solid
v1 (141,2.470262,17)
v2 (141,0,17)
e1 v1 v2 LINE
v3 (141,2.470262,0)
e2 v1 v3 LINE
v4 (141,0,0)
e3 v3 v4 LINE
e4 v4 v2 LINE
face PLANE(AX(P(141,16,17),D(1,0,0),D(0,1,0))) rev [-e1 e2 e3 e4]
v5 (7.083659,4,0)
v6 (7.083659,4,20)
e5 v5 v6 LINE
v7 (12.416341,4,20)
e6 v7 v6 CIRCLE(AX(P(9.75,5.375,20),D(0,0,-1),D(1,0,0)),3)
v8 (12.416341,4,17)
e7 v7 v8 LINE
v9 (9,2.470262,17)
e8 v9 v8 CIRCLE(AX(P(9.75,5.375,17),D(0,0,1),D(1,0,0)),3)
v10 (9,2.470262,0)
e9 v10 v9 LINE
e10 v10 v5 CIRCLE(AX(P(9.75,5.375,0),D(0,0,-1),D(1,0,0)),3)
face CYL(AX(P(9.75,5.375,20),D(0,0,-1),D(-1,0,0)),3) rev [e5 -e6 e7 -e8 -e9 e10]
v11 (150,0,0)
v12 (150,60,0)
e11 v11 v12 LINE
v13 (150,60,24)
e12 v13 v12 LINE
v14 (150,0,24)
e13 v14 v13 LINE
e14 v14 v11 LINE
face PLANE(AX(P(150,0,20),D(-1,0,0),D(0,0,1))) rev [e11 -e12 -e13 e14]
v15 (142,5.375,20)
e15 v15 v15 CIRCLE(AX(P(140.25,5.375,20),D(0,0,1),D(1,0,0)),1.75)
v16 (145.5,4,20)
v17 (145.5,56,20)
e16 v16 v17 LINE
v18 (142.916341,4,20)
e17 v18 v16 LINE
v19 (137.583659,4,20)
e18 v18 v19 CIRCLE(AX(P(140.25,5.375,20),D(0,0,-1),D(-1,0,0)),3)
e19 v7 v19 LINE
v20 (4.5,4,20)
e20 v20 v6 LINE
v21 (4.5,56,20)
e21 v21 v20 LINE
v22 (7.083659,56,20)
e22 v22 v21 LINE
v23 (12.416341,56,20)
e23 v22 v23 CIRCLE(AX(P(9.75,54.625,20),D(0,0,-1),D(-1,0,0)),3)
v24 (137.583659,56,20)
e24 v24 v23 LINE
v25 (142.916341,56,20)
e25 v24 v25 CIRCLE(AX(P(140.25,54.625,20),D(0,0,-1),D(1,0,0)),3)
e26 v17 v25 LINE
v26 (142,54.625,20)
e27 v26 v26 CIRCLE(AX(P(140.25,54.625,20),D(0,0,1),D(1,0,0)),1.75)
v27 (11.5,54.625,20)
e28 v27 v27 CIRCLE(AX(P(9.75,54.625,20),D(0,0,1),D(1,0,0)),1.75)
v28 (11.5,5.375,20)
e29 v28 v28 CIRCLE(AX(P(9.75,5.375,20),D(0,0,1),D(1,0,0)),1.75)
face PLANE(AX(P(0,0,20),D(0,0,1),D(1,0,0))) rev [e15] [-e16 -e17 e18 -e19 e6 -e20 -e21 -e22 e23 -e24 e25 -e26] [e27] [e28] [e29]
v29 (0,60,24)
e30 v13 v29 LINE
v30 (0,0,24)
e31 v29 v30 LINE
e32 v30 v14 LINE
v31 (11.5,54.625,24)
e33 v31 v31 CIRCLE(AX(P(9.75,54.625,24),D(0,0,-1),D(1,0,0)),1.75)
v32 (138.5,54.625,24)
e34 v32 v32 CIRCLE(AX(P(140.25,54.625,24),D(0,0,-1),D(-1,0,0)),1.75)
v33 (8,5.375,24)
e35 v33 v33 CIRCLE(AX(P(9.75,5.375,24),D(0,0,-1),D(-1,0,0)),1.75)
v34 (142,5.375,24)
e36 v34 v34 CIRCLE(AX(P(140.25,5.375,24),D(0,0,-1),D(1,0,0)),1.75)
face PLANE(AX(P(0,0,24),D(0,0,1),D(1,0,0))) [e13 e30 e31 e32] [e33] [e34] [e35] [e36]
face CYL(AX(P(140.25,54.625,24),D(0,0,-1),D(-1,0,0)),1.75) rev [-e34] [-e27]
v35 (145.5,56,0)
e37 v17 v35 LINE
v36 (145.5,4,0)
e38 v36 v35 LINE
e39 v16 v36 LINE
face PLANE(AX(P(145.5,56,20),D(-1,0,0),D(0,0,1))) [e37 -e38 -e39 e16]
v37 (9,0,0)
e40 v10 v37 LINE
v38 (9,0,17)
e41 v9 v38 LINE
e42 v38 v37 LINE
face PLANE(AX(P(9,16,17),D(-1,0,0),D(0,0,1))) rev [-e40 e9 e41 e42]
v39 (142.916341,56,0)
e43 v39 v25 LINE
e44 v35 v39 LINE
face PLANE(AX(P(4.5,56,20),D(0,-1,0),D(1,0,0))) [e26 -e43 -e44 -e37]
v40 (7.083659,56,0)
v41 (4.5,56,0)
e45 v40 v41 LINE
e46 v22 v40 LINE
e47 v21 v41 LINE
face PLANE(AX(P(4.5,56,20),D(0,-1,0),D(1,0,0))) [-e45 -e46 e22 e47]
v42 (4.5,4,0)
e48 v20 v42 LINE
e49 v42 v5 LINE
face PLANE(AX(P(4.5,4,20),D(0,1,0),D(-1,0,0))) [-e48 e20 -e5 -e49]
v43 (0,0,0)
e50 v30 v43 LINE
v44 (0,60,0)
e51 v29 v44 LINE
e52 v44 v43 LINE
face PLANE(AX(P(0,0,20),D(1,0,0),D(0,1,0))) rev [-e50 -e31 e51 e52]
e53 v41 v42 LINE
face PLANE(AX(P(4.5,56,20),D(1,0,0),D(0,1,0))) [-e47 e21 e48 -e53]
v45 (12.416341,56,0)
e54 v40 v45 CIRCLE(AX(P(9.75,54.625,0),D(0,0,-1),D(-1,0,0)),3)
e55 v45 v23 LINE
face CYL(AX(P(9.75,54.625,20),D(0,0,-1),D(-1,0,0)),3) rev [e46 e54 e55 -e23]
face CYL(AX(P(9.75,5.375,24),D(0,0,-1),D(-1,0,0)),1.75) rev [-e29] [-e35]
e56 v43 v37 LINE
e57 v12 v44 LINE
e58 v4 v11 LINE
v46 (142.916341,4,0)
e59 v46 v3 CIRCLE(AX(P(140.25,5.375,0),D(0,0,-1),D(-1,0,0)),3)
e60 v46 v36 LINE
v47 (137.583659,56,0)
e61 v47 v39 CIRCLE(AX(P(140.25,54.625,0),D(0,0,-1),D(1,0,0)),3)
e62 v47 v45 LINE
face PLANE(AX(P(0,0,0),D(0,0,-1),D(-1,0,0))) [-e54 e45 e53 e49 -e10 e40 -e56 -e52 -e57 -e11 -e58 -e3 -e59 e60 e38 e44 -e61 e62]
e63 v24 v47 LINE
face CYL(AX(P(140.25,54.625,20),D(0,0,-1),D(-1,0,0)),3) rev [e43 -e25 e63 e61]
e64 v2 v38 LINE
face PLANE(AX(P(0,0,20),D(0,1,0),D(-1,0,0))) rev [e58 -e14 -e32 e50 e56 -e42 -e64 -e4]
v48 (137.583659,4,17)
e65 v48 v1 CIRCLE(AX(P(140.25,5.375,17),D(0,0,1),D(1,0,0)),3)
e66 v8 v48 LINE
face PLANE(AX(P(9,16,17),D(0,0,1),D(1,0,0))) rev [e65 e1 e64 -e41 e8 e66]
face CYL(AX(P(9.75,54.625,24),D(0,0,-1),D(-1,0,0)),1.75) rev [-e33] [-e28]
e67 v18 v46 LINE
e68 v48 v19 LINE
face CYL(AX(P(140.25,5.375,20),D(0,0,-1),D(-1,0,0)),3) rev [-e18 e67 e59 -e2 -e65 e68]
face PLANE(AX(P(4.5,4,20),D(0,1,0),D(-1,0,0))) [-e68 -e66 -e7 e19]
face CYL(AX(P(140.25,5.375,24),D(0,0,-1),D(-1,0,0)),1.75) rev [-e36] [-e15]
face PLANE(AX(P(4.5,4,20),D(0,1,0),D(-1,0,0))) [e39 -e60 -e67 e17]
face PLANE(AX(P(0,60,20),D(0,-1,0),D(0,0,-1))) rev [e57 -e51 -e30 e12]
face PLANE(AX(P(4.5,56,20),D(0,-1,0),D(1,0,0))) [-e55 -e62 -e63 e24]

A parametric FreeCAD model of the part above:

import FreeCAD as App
import Part
import Sketcher
Q = App.Units.Quantity

doc = App.newDocument("Part")
body = doc.addObject("PartDesign::Body", "Body")

# Sketch on XY plane
sketch1 = body.newObject("Sketcher::SketchObject", "Sketch")
sketch1.AttachmentSupport = (doc.getObject("XY_Plane"), [""])
sketch1.MapMode = "FlatFace"
sketch1.addGeometry([
    Part.LineSegment(App.Vector(0, 60, 0), App.Vector(0, 0, 0)),  # 0
    Part.LineSegment(App.Vector(0, 0, 0), App.Vector(150, 0, 0)),  # 1
    Part.LineSegment(App.Vector(150, 0, 0), App.Vector(150, 60, 0)),  # 2
    Part.LineSegment(App.Vector(150, 60, 0), App.Vector(0, 60, 0)),  # 3
    Part.LineSegment(App.Vector(145.5, 4, 0), App.Vector(4.5, 4, 0)),  # 4
    Part.LineSegment(App.Vector(4.5, 4, 0), App.Vector(4.5, 56, 0)),  # 5
    Part.LineSegment(App.Vector(4.5, 56, 0), App.Vector(145.5, 56, 0)),  # 6
    Part.LineSegment(App.Vector(145.5, 56, 0), App.Vector(145.5, 4, 0)),  # 7
], False)
sketch1.addConstraint([
    Sketcher.Constraint("Coincident", 0, 2, 1, 1),
    Sketcher.Constraint("Coincident", 1, 2, 2, 1),
    Sketcher.Constraint("Coincident", 2, 2, 3, 1),
    Sketcher.Constraint("Coincident", 3, 2, 0, 1),
    Sketcher.Constraint("Coincident", 4, 2, 5, 1),
    Sketcher.Constraint("Coincident", 5, 2, 6, 1),
    Sketcher.Constraint("Coincident", 6, 2, 7, 1),
    Sketcher.Constraint("Coincident", 7, 2, 4, 1),
    Sketcher.Constraint("Vertical", 0),
    Sketcher.Constraint("Horizontal", 1),
    Sketcher.Constraint("Vertical", 2),
    Sketcher.Constraint("Horizontal", 3),
    Sketcher.Constraint("Horizontal", 4),
    Sketcher.Constraint("Vertical", 5),
    Sketcher.Constraint("Horizontal", 6),
    Sketcher.Constraint("Vertical", 7),
    Sketcher.Constraint("Coincident", 0, 2, -1, 1),
    Sketcher.Constraint("DistanceX", 1, 1, 1, 2, Q("150 mm")),
    Sketcher.Constraint("DistanceX", 4, 2, 4, 1, Q("141 mm")),
    Sketcher.Constraint("DistanceY", 0, 2, 0, 1, Q("60 mm")),
    Sketcher.Constraint("DistanceY", 5, 1, 5, 2, Q("52 mm")),
    Sketcher.Constraint("DistanceY", -1, 1, 4, 2, Q("4 mm")),
    Sketcher.Constraint("DistanceX", -1, 1, 4, 2, Q("4.5 mm")),
])
pad1 = body.newObject("PartDesign::Pad", "Pad")
pad1.Profile = sketch1
pad1.Length = 20

# Sketch on XY plane
sketch2 = body.newObject("Sketcher::SketchObject", "Sketch001")
sketch2.AttachmentSupport = (doc.getObject("XY_Plane"), [""])
sketch2.MapMode = "FlatFace"
sketch2.AttachmentOffset = App.Placement(App.Vector(0, 0, 20), App.Rotation())
sketch2.addGeometry([
    Part.LineSegment(App.Vector(0, 60, 0), App.Vector(0, 0, 0)),
    Part.LineSegment(App.Vector(0, 0, 0), App.Vector(150, 0, 0)),
    Part.LineSegment(App.Vector(150, 0, 0), App.Vector(150, 60, 0)),
    Part.LineSegment(App.Vector(150, 60, 0), App.Vector(0, 60, 0)),
], False)
sketch2.addConstraint([
    Sketcher.Constraint("Coincident", 0, 2, 1, 1),
    Sketcher.Constraint("Coincident", 1, 2, 2, 1),
    Sketcher.Constraint("Coincident", 2, 2, 3, 1),
    Sketcher.Constraint("Coincident", 3, 2, 0, 1),
    Sketcher.Constraint("Vertical", 0),
    Sketcher.Constraint("Horizontal", 1),
    Sketcher.Constraint("Vertical", 2),
    Sketcher.Constraint("Horizontal", 3),
    Sketcher.Constraint("Coincident", 0, 2, -1, 1),
    Sketcher.Constraint("DistanceX", 1, 1, 1, 2, Q("150 mm")),
    Sketcher.Constraint("DistanceY", 0, 2, 0, 1, Q("60 mm")),
])
pad2 = body.newObject("PartDesign::Pad", "Pad001")
pad2.Profile = sketch2
pad2.Length = 4

# Sketch on XZ plane
sketch3 = body.newObject("Sketcher::SketchObject", "Sketch002")
sketch3.AttachmentSupport = (doc.getObject("XZ_Plane"), [""])
sketch3.MapMode = "FlatFace"
sketch3.addGeometry([
    Part.LineSegment(App.Vector(9, 17, 0), App.Vector(9, 0, 0)),
    Part.LineSegment(App.Vector(9, 0, 0), App.Vector(141, 0, 0)),
    Part.LineSegment(App.Vector(141, 0, 0), App.Vector(141, 17, 0)),
    Part.LineSegment(App.Vector(141, 17, 0), App.Vector(9, 17, 0)),
], False)
sketch3.addConstraint([
    Sketcher.Constraint("Coincident", 0, 2, 1, 1),
    Sketcher.Constraint("Coincident", 1, 2, 2, 1),
    Sketcher.Constraint("Coincident", 2, 2, 3, 1),
    Sketcher.Constraint("Coincident", 3, 2, 0, 1),
    Sketcher.Constraint("Vertical", 0),
    Sketcher.Constraint("Horizontal", 1),
    Sketcher.Constraint("Vertical", 2),
    Sketcher.Constraint("Horizontal", 3),
    Sketcher.Constraint("PointOnObject", 0, 2, -1),
    Sketcher.Constraint("DistanceX", 1, 1, 1, 2, Q("132 mm")),
    Sketcher.Constraint("DistanceY", 0, 2, 0, 1, Q("17 mm")),
    Sketcher.Constraint("DistanceX", -1, 1, 0, 2, Q("9 mm")),
])
pocket1 = body.newObject("PartDesign::Pocket", "Pocket")
pocket1.Profile = sketch3
pocket1.Length = 16

# Sketch on XY plane
sketch4 = body.newObject("Sketcher::SketchObject", "Sketch003")
sketch4.AttachmentSupport = (doc.getObject("XY_Plane"), [""])
sketch4.MapMode = "FlatFace"
sketch4.AttachmentOffset = App.Placement(App.Vector(0, 0, 20), App.Rotation())
sketch4.addGeometry([
    Part.Circle(App.Vector(140.25, 54.625, 0), App.Vector(0, 0, 1), 1.75),
    Part.Circle(App.Vector(9.75, 54.625, 0), App.Vector(0, 0, 1), 1.75),
    Part.Circle(App.Vector(9.75, 5.375, 0), App.Vector(0, 0, 1), 1.75),
    Part.Circle(App.Vector(140.25, 5.375, 0), App.Vector(0, 0, 1), 1.75),
], False)
sketch4.addConstraint([
    Sketcher.Constraint("Equal", 0, 1),
    Sketcher.Constraint("Equal", 1, 2),
    Sketcher.Constraint("Equal", 2, 3),
    Sketcher.Constraint("Horizontal", 0, 3, 1, 3),
    Sketcher.Constraint("Horizontal", 2, 3, 3, 3),
    Sketcher.Constraint("Vertical", 1, 3, 2, 3),
    Sketcher.Constraint("Vertical", 0, 3, 3, 3),
    Sketcher.Constraint("Diameter", 0, Q("3.5 mm")),
    Sketcher.Constraint("DistanceX", 1, 3, 0, 3, Q("130.5 mm")),
    Sketcher.Constraint("DistanceX", -1, 1, 0, 3, Q("140.25 mm")),
    Sketcher.Constraint("DistanceY", 2, 3, 1, 3, Q("49.25 mm")),
    Sketcher.Constraint("DistanceY", -1, 1, 0, 3, Q("54.625 mm")),
])
pocket2 = body.newObject("PartDesign::Pocket", "Pocket001")
pocket2.Profile = sketch4
pocket2.Type = "ThroughAll"
pocket2.Midplane = True

# Sketch on XY plane
sketch5 = body.newObject("Sketcher::SketchObject", "Sketch004")
sketch5.AttachmentSupport = (doc.getObject("XY_Plane"), [""])
sketch5.MapMode = "FlatFace"
sketch5.AttachmentOffset = App.Placement(App.Vector(0, 0, 20), App.Rotation())
sketch5.addGeometry([
    Part.Circle(App.Vector(140.25, 5.375, 0), App.Vector(0, 0, 1), 3),
    Part.Circle(App.Vector(9.75, 5.375, 0), App.Vector(0, 0, 1), 3),
    Part.Circle(App.Vector(140.25, 54.625, 0), App.Vector(0, 0, 1), 3),
    Part.Circle(App.Vector(9.75, 54.625, 0), App.Vector(0, 0, 1), 3),
], False)
sketch5.addConstraint([
    Sketcher.Constraint("Equal", 0, 1),
    Sketcher.Constraint("Equal", 1, 2),
    Sketcher.Constraint("Equal", 2, 3),
    Sketcher.Constraint("Horizontal", 0, 3, 1, 3),
    Sketcher.Constraint("Horizontal", 2, 3, 3, 3),
    Sketcher.Constraint("Vertical", 0, 3, 2, 3),
    Sketcher.Constraint("Vertical", 1, 3, 3, 3),
    Sketcher.Constraint("Diameter", 0, Q("6 mm")),
    Sketcher.Constraint("DistanceX", 1, 3, 0, 3, Q("130.5 mm")),
    Sketcher.Constraint("DistanceX", -1, 1, 0, 3, Q("140.25 mm")),
    Sketcher.Constraint("DistanceY", 0, 3, 2, 3, Q("49.25 mm")),
    Sketcher.Constraint("DistanceY", -1, 1, 0, 3, Q("5.375 mm")),
])
pocket3 = body.newObject("PartDesign::Pocket", "Pocket002")
pocket3.Profile = sketch5
pocket3.Length = 20

doc.recompute()
